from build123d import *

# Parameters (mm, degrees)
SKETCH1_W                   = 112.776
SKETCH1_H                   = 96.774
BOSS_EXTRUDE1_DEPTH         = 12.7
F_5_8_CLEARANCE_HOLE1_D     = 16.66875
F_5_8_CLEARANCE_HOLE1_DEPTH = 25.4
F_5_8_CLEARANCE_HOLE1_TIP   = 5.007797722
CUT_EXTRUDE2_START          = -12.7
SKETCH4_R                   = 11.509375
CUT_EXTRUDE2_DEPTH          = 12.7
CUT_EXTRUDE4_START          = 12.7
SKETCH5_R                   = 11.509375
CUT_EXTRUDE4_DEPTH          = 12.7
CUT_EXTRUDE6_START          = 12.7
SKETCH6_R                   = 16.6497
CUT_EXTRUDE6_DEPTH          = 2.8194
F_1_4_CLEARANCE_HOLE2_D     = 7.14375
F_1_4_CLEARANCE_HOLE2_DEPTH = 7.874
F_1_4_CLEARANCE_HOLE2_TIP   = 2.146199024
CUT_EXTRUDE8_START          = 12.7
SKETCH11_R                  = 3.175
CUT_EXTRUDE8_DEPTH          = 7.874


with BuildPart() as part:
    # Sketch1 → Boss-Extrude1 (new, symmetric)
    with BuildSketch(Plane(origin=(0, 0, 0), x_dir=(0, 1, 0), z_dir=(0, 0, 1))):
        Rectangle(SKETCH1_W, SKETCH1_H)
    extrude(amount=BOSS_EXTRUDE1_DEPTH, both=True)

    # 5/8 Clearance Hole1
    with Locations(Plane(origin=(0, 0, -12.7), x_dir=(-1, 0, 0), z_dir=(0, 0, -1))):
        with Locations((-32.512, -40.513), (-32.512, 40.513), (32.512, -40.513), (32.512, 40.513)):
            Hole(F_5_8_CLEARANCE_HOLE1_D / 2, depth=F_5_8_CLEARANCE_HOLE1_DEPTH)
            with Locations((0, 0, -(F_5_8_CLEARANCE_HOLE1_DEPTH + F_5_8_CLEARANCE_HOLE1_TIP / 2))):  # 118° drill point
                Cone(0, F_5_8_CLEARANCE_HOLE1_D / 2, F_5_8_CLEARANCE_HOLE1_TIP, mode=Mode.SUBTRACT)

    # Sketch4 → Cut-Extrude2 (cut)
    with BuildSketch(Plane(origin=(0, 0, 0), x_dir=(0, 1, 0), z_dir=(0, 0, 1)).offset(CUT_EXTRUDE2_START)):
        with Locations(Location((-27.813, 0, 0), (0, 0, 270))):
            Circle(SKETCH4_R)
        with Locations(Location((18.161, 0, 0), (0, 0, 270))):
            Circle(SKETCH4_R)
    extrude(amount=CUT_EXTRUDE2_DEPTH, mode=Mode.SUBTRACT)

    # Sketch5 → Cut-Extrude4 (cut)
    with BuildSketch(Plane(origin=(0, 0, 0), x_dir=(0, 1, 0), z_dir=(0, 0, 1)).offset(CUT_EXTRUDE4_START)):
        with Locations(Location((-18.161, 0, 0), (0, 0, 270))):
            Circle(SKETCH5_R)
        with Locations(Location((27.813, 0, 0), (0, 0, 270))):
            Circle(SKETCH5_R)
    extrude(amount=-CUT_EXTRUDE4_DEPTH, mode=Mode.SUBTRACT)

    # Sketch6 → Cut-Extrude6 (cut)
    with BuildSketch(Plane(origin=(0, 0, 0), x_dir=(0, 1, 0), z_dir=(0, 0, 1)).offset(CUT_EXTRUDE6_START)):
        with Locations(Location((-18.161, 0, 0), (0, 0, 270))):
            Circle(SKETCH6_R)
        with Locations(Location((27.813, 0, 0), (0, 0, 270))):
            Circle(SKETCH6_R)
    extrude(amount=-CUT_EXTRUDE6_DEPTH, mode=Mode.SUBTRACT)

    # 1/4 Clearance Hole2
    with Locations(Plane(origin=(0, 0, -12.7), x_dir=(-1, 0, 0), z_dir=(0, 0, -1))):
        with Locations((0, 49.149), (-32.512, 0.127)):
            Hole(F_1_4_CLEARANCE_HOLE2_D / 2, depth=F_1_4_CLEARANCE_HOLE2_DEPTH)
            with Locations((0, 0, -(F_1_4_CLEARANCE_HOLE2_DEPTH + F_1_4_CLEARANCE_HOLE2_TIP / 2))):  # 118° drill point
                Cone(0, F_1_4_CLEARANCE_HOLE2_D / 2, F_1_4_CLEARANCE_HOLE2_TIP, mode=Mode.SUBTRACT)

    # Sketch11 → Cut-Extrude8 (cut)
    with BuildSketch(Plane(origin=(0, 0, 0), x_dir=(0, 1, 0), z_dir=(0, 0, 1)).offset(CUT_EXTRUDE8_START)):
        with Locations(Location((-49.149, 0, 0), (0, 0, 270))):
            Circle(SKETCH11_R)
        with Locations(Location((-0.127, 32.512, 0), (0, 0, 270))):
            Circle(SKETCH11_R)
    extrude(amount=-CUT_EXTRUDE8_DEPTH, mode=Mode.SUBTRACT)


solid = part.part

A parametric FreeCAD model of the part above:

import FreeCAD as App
import Part
import Sketcher
from FreeCAD import Vector
Q = App.Units.Quantity


def add_polygon(sketch, points):
    """Adds a closed chain of lines whose ends are joined by coincident constraints."""
    first, n = sketch.GeometryCount, len(points)
    for a, b in zip(points, points[1:] + points[:1]):
        sketch.addGeometry(Part.LineSegment(App.Vector(*a, 0), App.Vector(*b, 0)), False)
    for i in range(n):
        sketch.addConstraint(Sketcher.Constraint("Coincident", first + i, 2, first + (i + 1) % n, 1))

doc = App.newDocument("Part")
params = doc.addObject("Spreadsheet::Sheet", "Params")
for row, (alias, value) in enumerate([
    ("sketch1_width", "3.81 in"),
    ("sketch1_height", "4.44 in"),
    ("pad1_length", "1 in"),
    ("sketch2_diameter", "0.65625 in"),
    ("hole_diameter", "0.65625 in"),
    ("hole_depth", "1 in"),
    ("sketch3_diameter", "0.90625 in"),
    ("pocket1_length", "0.5 in"),
    ("sketch4_diameter", "0.90625 in"),
    ("pocket2_length", "0.5 in"),
    ("sketch5_diameter", "1.311 in"),
    ("pocket3_length", "0.111 in"),
    ("sketch6_diameter", "0.28125 in"),
    ("hole2_diameter", "0.28125 in"),
    ("hole2_depth", "0.31 in"),
    ("sketch7_diameter", "0.25 in"),
    ("pocket4_length", "0.31 in"),
], start=1):
    params.set(f"A{row}", alias)
    params.set(f"B{row}", "=" + value)
    params.setAlias(f"B{row}", alias)

body = doc.addObject("PartDesign::Body", "Body")

# Sketch on XY plane
sketch1 = body.newObject("Sketcher::SketchObject", "Sketch")
sketch1.AttachmentSupport = (doc.getObject("XY_Plane"), [""])
sketch1.MapMode = "FlatFace"
add_polygon(sketch1, [(-48.387, -56.388), (48.387, -56.388), (48.387, 56.388), (-48.387, 56.388)])  # lines 0-3
sketch1.addConstraint([
    Sketcher.Constraint("Horizontal", 0),
    Sketcher.Constraint("Vertical", 1),
    Sketcher.Constraint("Horizontal", 2),
    Sketcher.Constraint("Vertical", 3),
    Sketcher.Constraint("Symmetric", 0, 2, 2, 2, -1, 1),
    Sketcher.Constraint("DistanceX", 0, 1, 0, 2, Q("3.81 in")),
    Sketcher.Constraint("DistanceY", 1, 1, 1, 2, Q("4.44 in")),
])
sketch1.setExpression("Constraints[9]", "Params.sketch1_width")
sketch1.setExpression("Constraints[10]", "Params.sketch1_height")
pad1 = body.newObject("PartDesign::Pad", "Pad")
pad1.Profile = sketch1
pad1.setExpression("Length", "Params.pad1_length")
pad1.Midplane = True

# Sketch on XY plane
sketch2 = body.newObject("Sketcher::SketchObject", "Sketch001")
sketch2.AttachmentSupport = (doc.getObject("XY_Plane"), [""])
sketch2.MapMode = "FlatFace"
sketch2.AttachmentOffset = App.Placement(Vector(0, 0, -0.5 * 25.4), App.Rotation())
sketch2.addGeometry([
    Part.Circle(Vector(32.512, -40.513, 0), Vector(0, 0, 1), 8.334375),
    Part.Circle(Vector(32.512, 40.513, 0), Vector(0, 0, 1), 8.334375),
    Part.Circle(Vector(-32.512, -40.513, 0), Vector(0, 0, 1), 8.334375),
    Part.Circle(Vector(-32.512, 40.513, 0), Vector(0, 0, 1), 8.334375),
], False)
sketch2.addConstraint([
    Sketcher.Constraint("Equal", 0, 1),
    Sketcher.Constraint("Equal", 1, 2),
    Sketcher.Constraint("Equal", 2, 3),
    Sketcher.Constraint("Symmetric", 1, 3, 2, 3, -1, 1),
    Sketcher.Constraint("Symmetric", 0, 3, 3, 3, -1, 1),
    Sketcher.Constraint("Symmetric", 0, 3, 2, 3, -2),
    Sketcher.Constraint("Diameter", 0, Q("0.65625 in")),
    Sketcher.Constraint("DistanceX", -1, 1, 0, 3, Q("1.28 in")),
    Sketcher.Constraint("DistanceY", 0, 3, 1, 3, Q("3.19 in")),
])
sketch2.setExpression("Constraints[6]", "Params.sketch2_diameter")
doc.recompute()
hole = body.newObject("PartDesign::Hole", "Hole")
hole.Profile = sketch2
hole.ThreadType = "None"
hole.setExpression("Diameter", "Params.hole_diameter")
hole.DepthType = "Dimension"
hole.setExpression("Depth", "Params.hole_depth")
hole.DrillPoint = "Angled"
hole.DrillPointAngle = 118
hole.Reversed = True

# Sketch on XY plane
sketch3 = body.newObject("Sketcher::SketchObject", "Sketch002")
sketch3.AttachmentSupport = (doc.getObject("XY_Plane"), [""])
sketch3.MapMode = "FlatFace"
sketch3.AttachmentOffset = App.Placement(Vector(0, 0, -0.5 * 25.4), App.Rotation())
sketch3.addGeometry([
    Part.Circle(Vector(0, -27.813, 0), Vector(0, 0, 1), 11.509375),
    Part.Circle(Vector(0, 18.161, 0), Vector(0, 0, 1), 11.509375),
], False)
sketch3.addConstraint([
    Sketcher.Constraint("Equal", 0, 1),
    Sketcher.Constraint("PointOnObject", 0, 3, -2),
    Sketcher.Constraint("PointOnObject", 1, 3, -2),
    Sketcher.Constraint("Diameter", 0, Q("0.90625 in")),
    Sketcher.Constraint("DistanceY", 0, 3, 1, 3, Q("1.81 in")),
    Sketcher.Constraint("DistanceY", 0, 3, -1, 1, Q("1.095 in")),
])
sketch3.setExpression("Constraints[3]", "Params.sketch3_diameter")
pocket1 = body.newObject("PartDesign::Pocket", "Pocket")
pocket1.Profile = sketch3
pocket1.setExpression("Length", "Params.pocket1_length")
pocket1.Reversed = True

# Sketch on XY plane
sketch4 = body.newObject("Sketcher::SketchObject", "Sketch003")
sketch4.AttachmentSupport = (doc.getObject("XY_Plane"), [""])
sketch4.MapMode = "FlatFace"
sketch4.AttachmentOffset = App.Placement(Vector(0, 0, 0.5 * 25.4), App.Rotation())
sketch4.addGeometry([
    Part.Circle(Vector(0, -18.161, 0), Vector(0, 0, 1), 11.509375),
    Part.Circle(Vector(0, 27.813, 0), Vector(0, 0, 1), 11.509375),
], False)
sketch4.addConstraint([
    Sketcher.Constraint("Equal", 0, 1),
    Sketcher.Constraint("PointOnObject", 0, 3, -2),
    Sketcher.Constraint("PointOnObject", 1, 3, -2),
    Sketcher.Constraint("Diameter", 0, Q("0.90625 in")),
    Sketcher.Constraint("DistanceY", 0, 3, 1, 3, Q("1.81 in")),
    Sketcher.Constraint("DistanceY", 0, 3, -1, 1, Q("0.715 in")),
])
sketch4.setExpression("Constraints[3]", "Params.sketch4_diameter")
pocket2 = body.newObject("PartDesign::Pocket", "Pocket001")
pocket2.Profile = sketch4
pocket2.setExpression("Length", "Params.pocket2_length")

# Sketch on XY plane
sketch5 = body.newObject("Sketcher::SketchObject", "Sketch004")
sketch5.AttachmentSupport = (doc.getObject("XY_Plane"), [""])
sketch5.MapMode = "FlatFace"
sketch5.AttachmentOffset = App.Placement(Vector(0, 0, 0.5 * 25.4), App.Rotation())
sketch5.addGeometry([
    Part.Circle(Vector(0, -18.161, 0), Vector(0, 0, 1), 16.6497),
    Part.Circle(Vector(0, 27.813, 0), Vector(0, 0, 1), 16.6497),
], False)
sketch5.addConstraint([
    Sketcher.Constraint("Equal", 0, 1),
    Sketcher.Constraint("PointOnObject", 0, 3, -2),
    Sketcher.Constraint("PointOnObject", 1, 3, -2),
    Sketcher.Constraint("Diameter", 0, Q("1.311 in")),
    Sketcher.Constraint("DistanceY", 0, 3, 1, 3, Q("1.81 in")),
    Sketcher.Constraint("DistanceY", 0, 3, -1, 1, Q("0.715 in")),
])
sketch5.setExpression("Constraints[3]", "Params.sketch5_diameter")
pocket3 = body.newObject("PartDesign::Pocket", "Pocket002")
pocket3.Profile = sketch5
pocket3.setExpression("Length", "Params.pocket3_length")

# Sketch on XY plane
sketch6 = body.newObject("Sketcher::SketchObject", "Sketch005")
sketch6.AttachmentSupport = (doc.getObject("XY_Plane"), [""])
sketch6.MapMode = "FlatFace"
sketch6.AttachmentOffset = App.Placement(Vector(0, 0, -0.5 * 25.4), App.Rotation())
sketch6.addGeometry([
    Part.Circle(Vector(0, 49.149, 0), Vector(0, 0, 1), 3.571875),
    Part.Circle(Vector(32.512, 0.127, 0), Vector(0, 0, 1), 3.571875),
], False)
sketch6.addConstraint([
    Sketcher.Constraint("Equal", 0, 1),
    Sketcher.Constraint("PointOnObject", 0, 3, -2),
    Sketcher.Constraint("Diameter", 0, Q("0.28125 in")),
    Sketcher.Constraint("DistanceX", -1, 1, 1, 3, Q("1.28 in")),
    Sketcher.Constraint("DistanceY", 1, 3, 0, 3, Q("1.93 in")),
    Sketcher.Constraint("DistanceY", -1, 1, 0, 3, Q("1.935 in")),
])
sketch6.setExpression("Constraints[2]", "Params.sketch6_diameter")
doc.recompute()
hole2 = body.newObject("PartDesign::Hole", "Hole001")
hole2.Profile = sketch6
hole2.ThreadType = "None"
hole2.setExpression("Diameter", "Params.hole2_diameter")
hole2.DepthType = "Dimension"
hole2.setExpression("Depth", "Params.hole2_depth")
hole2.DrillPoint = "Angled"
hole2.DrillPointAngle = 118
hole2.Reversed = True

# Sketch on XY plane
sketch7 = body.newObject("Sketcher::SketchObject", "Sketch006")
sketch7.AttachmentSupport = (doc.getObject("XY_Plane"), [""])
sketch7.MapMode = "FlatFace"
sketch7.AttachmentOffset = App.Placement(Vector(0, 0, 0.5 * 25.4), App.Rotation())
sketch7.addGeometry([
    Part.Circle(Vector(0, -49.149, 0), Vector(0, 0, 1), 3.175),
    Part.Circle(Vector(-32.512, -0.127, 0), Vector(0, 0, 1), 3.175),
], False)
sketch7.addConstraint([
    Sketcher.Constraint("Equal", 0, 1),
    Sketcher.Constraint("PointOnObject", 0, 3, -2),
    Sketcher.Constraint("Diameter", 0, Q("0.25 in")),
    Sketcher.Constraint("DistanceX", 1, 3, -1, 1, Q("1.28 in")),
    Sketcher.Constraint("DistanceY", 0, 3, 1, 3, Q("1.93 in")),
    Sketcher.Constraint("DistanceY", 0, 3, -1, 1, Q("1.935 in")),
])
sketch7.setExpression("Constraints[2]", "Params.sketch7_diameter")
pocket4 = body.newObject("PartDesign::Pocket", "Pocket003")
pocket4.Profile = sketch7
pocket4.setExpression("Length", "Params.pocket4_length")

doc.recompute()
